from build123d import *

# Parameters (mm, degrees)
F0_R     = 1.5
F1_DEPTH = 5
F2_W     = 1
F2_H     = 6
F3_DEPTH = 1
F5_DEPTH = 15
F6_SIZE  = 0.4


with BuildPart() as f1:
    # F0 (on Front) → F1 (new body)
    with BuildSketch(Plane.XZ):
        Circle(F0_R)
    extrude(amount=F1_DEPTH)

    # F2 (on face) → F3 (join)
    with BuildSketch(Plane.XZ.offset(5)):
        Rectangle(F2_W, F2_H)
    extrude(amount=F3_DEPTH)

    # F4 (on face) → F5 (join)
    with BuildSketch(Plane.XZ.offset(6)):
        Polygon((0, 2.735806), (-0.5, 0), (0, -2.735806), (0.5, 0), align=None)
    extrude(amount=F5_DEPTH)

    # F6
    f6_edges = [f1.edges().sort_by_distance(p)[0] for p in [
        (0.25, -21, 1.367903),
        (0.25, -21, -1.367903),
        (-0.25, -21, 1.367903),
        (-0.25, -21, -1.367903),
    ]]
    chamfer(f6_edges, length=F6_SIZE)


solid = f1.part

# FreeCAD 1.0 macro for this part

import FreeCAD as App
import Part
import Sketcher


def edges_at(feature, points):
    """Names of the edges that pass closest to the given points."""
    edges = feature.Shape.Edges
    near = lambda p: min(range(len(edges)), key=lambda i: edges[i].distToShape(Part.Vertex(*p))[0])
    return sorted({f"Edge{near(p) + 1}" for p in points})


def add_polygon(sketch, points):
    """Adds a closed chain of lines whose ends are joined by coincident constraints."""
    first, n = sketch.GeometryCount, len(points)
    for a, b in zip(points, points[1:] + points[:1]):
        sketch.addGeometry(Part.LineSegment(App.Vector(*a, 0), App.Vector(*b, 0)), False)
    for i in range(n):
        sketch.addConstraint(Sketcher.Constraint("Coincident", first + i, 2, first + (i + 1) % n, 1))

doc = App.newDocument("Part")
body = doc.addObject("PartDesign::Body", "Body")

# Sketch on XZ plane
sketch1 = body.newObject("Sketcher::SketchObject", "Sketch")
sketch1.AttachmentSupport = (doc.getObject("XZ_Plane"), [""])
sketch1.MapMode = "FlatFace"
sketch1.addGeometry(Part.Circle(App.Vector(0, 0, 0), App.Vector(0, 0, 1), 1.5), False)
sketch1.addConstraint([
    Sketcher.Constraint("Coincident", 0, 3, -1, 1),
    Sketcher.Constraint("Diameter", 0, 3.0),
])
pad1 = body.newObject("PartDesign::Pad", "Pad")
pad1.Profile = sketch1
pad1.Length = 5

# Sketch on XZ plane
sketch2 = body.newObject("Sketcher::SketchObject", "Sketch001")
sketch2.AttachmentSupport = (doc.getObject("XZ_Plane"), [""])
sketch2.MapMode = "FlatFace"
sketch2.AttachmentOffset = App.Placement(App.Vector(0, 0, 5), App.Rotation())
add_polygon(sketch2, [(-0.5, 3), (-0.5, -3), (0.5, -3), (0.5, 3)])  # lines 0-3
sketch2.addConstraint([
    Sketcher.Constraint("Vertical", 0),
    Sketcher.Constraint("Horizontal", 1),
    Sketcher.Constraint("Vertical", 2),
    Sketcher.Constraint("Horizontal", 3),
    Sketcher.Constraint("Symmetric", 0, 2, 2, 2, -1, 1),
    Sketcher.Constraint("DistanceX", 1, 1, 1, 2, 1.0),
    Sketcher.Constraint("DistanceY", 0, 2, 0, 1, 6.0),
])
pad2 = body.newObject("PartDesign::Pad", "Pad001")
pad2.Profile = sketch2
pad2.Length = 1

# Sketch on XZ plane
sketch3 = body.newObject("Sketcher::SketchObject", "Sketch002")
sketch3.AttachmentSupport = (doc.getObject("XZ_Plane"), [""])
sketch3.MapMode = "FlatFace"
sketch3.AttachmentOffset = App.Placement(App.Vector(0, 0, 6), App.Rotation())
add_polygon(sketch3, [(0, 2.7), (-0.5, 0), (0, -2.7), (0.5, 0)])  # lines 0-3
sketch3.addConstraint([
    Sketcher.Constraint("Symmetric", 0, 2, 2, 2, -1, 1),
    Sketcher.Constraint("Symmetric", 1, 2, 3, 2, -1, 1),
    Sketcher.Constraint("PointOnObject", 0, 2, -1),
    Sketcher.Constraint("PointOnObject", 1, 2, -2),
    Sketcher.Constraint("DistanceX", 0, 2, 2, 2, 1.0),
    Sketcher.Constraint("Distance", 0, 2.781121),
])
pad3 = body.newObject("PartDesign::Pad", "Pad002")
pad3.Profile = sketch3
pad3.Length = 15
doc.recompute()

chamfer = body.newObject("PartDesign::Chamfer", "Chamfer")
chamfer.Base = (pad3, edges_at(pad3, [
    (0.25, -21, 1.368),
    (0.25, -21, -1.368),
    (-0.25, -21, 1.368),
    (-0.25, -21, -1.368),
]))
chamfer.Size = 0.4

doc.recompute()
